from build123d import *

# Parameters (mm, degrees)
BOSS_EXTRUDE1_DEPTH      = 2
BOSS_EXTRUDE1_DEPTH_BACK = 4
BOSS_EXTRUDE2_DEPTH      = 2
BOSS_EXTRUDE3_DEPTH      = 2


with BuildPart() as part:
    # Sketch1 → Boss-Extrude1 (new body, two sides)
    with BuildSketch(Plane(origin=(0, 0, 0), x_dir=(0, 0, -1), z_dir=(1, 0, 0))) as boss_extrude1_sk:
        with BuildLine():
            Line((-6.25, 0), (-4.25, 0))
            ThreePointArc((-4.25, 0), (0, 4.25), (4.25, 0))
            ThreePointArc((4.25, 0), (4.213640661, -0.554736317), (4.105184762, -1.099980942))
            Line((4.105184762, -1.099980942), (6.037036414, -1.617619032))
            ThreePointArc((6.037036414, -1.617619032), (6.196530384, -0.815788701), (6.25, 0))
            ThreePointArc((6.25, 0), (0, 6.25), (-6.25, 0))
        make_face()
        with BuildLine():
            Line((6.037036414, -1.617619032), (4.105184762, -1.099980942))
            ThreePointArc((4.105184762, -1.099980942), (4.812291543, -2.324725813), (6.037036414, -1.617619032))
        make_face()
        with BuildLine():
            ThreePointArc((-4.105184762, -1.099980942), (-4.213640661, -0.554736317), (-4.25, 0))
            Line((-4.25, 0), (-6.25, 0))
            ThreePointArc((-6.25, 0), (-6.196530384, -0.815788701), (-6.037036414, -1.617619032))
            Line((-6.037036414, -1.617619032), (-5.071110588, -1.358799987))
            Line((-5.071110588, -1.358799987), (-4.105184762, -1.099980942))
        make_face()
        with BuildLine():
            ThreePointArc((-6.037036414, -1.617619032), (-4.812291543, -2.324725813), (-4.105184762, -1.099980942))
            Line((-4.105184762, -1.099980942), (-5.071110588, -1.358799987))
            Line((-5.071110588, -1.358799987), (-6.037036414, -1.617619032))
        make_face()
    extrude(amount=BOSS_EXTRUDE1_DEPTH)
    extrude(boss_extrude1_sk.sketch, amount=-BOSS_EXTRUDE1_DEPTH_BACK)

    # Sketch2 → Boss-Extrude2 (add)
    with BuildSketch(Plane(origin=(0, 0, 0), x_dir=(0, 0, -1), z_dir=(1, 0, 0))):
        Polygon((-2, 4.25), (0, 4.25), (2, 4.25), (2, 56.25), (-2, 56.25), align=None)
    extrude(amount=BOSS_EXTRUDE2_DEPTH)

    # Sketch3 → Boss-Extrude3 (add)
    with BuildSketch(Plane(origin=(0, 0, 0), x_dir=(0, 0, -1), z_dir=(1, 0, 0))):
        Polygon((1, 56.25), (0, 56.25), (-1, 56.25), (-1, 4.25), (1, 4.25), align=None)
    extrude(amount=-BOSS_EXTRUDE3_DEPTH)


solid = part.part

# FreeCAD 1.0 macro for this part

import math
import FreeCAD as App
import Part
import Sketcher

V = App.Vector


def add_polygon(sketch, points):
    """Adds a closed chain of lines whose ends are joined by coincident constraints."""
    first, n = sketch.GeometryCount, len(points)
    for a, b in zip(points, points[1:] + points[:1]):
        sketch.addGeometry(Part.LineSegment(App.Vector(*a, 0), App.Vector(*b, 0)), False)
    for i in range(n):
        sketch.addConstraint(Sketcher.Constraint("Coincident", first + i, 2, first + (i + 1) % n, 1))

doc = App.newDocument("Part")
body = doc.addObject("PartDesign::Body", "Body")

# Sketch on YZ plane
sketch1 = body.newObject("Sketcher::SketchObject", "Sketch")
sketch1.AttachmentSupport = (doc.getObject("YZ_Plane"), [""])
sketch1.MapMode = "FlatFace"
sketch1.addGeometry([
    Part.ArcOfCircle(Part.Circle(V(0, 0, 0), V(0, 0, 1), 4.2), math.radians(-90), math.radians(90)),  # 0
    Part.ArcOfCircle(Part.Circle(V(0, 0, 0), V(0, 0, 1), 4.3), math.radians(-105), math.radians(-90)),  # 1
    Part.ArcOfCircle(Part.Circle(V(-1.4, -5.1, 0), V(0, 0, 1), 1), math.radians(75), math.radians(255)),  # 2
    Part.ArcOfCircle(Part.Circle(V(0, 0, 0), V(0, 0, 1), 6.2), math.radians(-105), math.radians(-90)),  # 3
    Part.ArcOfCircle(Part.Circle(V(0, 0, 0), V(0, 0, 1), 6.2), math.radians(-90), math.radians(90)),  # 4
    Part.ArcOfCircle(Part.Circle(V(0, 0, 0), V(0, 0, 1), 6.2), math.radians(90), math.radians(105)),  # 5
    Part.ArcOfCircle(Part.Circle(V(-1.4, 5.1, 0), V(0, 0, 1), 1), math.radians(105), math.radians(285)),  # 6
    Part.ArcOfCircle(Part.Circle(V(0, 0, 0), V(0, 0, 1), 4.3), math.radians(90), math.radians(105)),  # 7
], False)
sketch1.addConstraint([
    Sketcher.Constraint("Tangent", 0, 1, 1, 2),
    Sketcher.Constraint("Tangent", 1, 1, 2, 1),
    Sketcher.Constraint("Tangent", 2, 2, 3, 1),
    Sketcher.Constraint("Tangent", 3, 2, 4, 1),
    Sketcher.Constraint("Tangent", 4, 2, 5, 1),
    Sketcher.Constraint("Tangent", 5, 2, 6, 1),
    Sketcher.Constraint("Tangent", 6, 2, 7, 2),
    Sketcher.Constraint("Tangent", 7, 1, 0, 2),
    Sketcher.Constraint("Coincident", 0, 3, -1, 1),
    Sketcher.Constraint("Coincident", 3, 3, -1, 1),
    Sketcher.Constraint("Equal", 0, 1),
    Sketcher.Constraint("Equal", 3, 4),
    Sketcher.Constraint("Equal", 4, 5),
    Sketcher.Constraint("Equal", 2, 6),
    Sketcher.Constraint("PointOnObject", 0, 1, -2),
    Sketcher.Constraint("PointOnObject", 3, 2, -2),
    Sketcher.Constraint("PointOnObject", 4, 2, -2),
    Sketcher.Constraint("PointOnObject", 7, 1, -2),
    Sketcher.Constraint("Vertical", 2, 3, 6, 3),
    Sketcher.Constraint("Radius", 2, 1.0),
    Sketcher.Constraint("Radius", 0, 4.25),
    Sketcher.Constraint("DistanceX", 2, 3, -1, 1, 1.3588),
])
pad1 = body.newObject("PartDesign::Pad", "Pad")
pad1.Profile = sketch1
pad1.Type = "TwoLengths"
pad1.Length = 2
pad1.Length2 = 4

# Sketch on YZ plane
sketch2 = body.newObject("Sketcher::SketchObject", "Sketch001")
sketch2.AttachmentSupport = (doc.getObject("YZ_Plane"), [""])
sketch2.MapMode = "FlatFace"
add_polygon(sketch2, [(4.2, 2), (4.2, -2), (56.2, -2), (56.2, 2)])  # lines 0-3
sketch2.addConstraint([
    Sketcher.Constraint("Vertical", 0),
    Sketcher.Constraint("Horizontal", 1),
    Sketcher.Constraint("Vertical", 2),
    Sketcher.Constraint("Horizontal", 3),
    Sketcher.Constraint("DistanceX", 1, 1, 1, 2, 52.0),
    Sketcher.Constraint("DistanceY", 0, 2, 0, 1, 4.0),
    Sketcher.Constraint("DistanceY", 0, 2, -1, 1, 2.0),
    Sketcher.Constraint("DistanceX", -1, 1, 0, 2, 4.25),
])
pad2 = body.newObject("PartDesign::Pad", "Pad001")
pad2.Profile = sketch2
pad2.Length = 2

# Sketch on YZ plane
sketch3 = body.newObject("Sketcher::SketchObject", "Sketch002")
sketch3.AttachmentSupport = (doc.getObject("YZ_Plane"), [""])
sketch3.MapMode = "FlatFace"
add_polygon(sketch3, [(56.2, -1), (56.2, 1), (4.2, 1), (4.2, -1)])  # lines 0-3
sketch3.addConstraint([
    Sketcher.Constraint("Vertical", 0),
    Sketcher.Constraint("Horizontal", 1),
    Sketcher.Constraint("Vertical", 2),
    Sketcher.Constraint("Horizontal", 3),
    Sketcher.Constraint("DistanceX", 1, 2, 1, 1, 52.0),
    Sketcher.Constraint("DistanceY", 0, 1, 0, 2, 2.0),
    Sketcher.Constraint("DistanceY", -1, 1, 0, 2, 1.0),
    Sketcher.Constraint("DistanceX", -1, 1, 0, 2, 56.25),
])
pad3 = body.newObject("PartDesign::Pad", "Pad002")
pad3.Profile = sketch3
pad3.Length = 2
pad3.Reversed = True

doc.recompute()
